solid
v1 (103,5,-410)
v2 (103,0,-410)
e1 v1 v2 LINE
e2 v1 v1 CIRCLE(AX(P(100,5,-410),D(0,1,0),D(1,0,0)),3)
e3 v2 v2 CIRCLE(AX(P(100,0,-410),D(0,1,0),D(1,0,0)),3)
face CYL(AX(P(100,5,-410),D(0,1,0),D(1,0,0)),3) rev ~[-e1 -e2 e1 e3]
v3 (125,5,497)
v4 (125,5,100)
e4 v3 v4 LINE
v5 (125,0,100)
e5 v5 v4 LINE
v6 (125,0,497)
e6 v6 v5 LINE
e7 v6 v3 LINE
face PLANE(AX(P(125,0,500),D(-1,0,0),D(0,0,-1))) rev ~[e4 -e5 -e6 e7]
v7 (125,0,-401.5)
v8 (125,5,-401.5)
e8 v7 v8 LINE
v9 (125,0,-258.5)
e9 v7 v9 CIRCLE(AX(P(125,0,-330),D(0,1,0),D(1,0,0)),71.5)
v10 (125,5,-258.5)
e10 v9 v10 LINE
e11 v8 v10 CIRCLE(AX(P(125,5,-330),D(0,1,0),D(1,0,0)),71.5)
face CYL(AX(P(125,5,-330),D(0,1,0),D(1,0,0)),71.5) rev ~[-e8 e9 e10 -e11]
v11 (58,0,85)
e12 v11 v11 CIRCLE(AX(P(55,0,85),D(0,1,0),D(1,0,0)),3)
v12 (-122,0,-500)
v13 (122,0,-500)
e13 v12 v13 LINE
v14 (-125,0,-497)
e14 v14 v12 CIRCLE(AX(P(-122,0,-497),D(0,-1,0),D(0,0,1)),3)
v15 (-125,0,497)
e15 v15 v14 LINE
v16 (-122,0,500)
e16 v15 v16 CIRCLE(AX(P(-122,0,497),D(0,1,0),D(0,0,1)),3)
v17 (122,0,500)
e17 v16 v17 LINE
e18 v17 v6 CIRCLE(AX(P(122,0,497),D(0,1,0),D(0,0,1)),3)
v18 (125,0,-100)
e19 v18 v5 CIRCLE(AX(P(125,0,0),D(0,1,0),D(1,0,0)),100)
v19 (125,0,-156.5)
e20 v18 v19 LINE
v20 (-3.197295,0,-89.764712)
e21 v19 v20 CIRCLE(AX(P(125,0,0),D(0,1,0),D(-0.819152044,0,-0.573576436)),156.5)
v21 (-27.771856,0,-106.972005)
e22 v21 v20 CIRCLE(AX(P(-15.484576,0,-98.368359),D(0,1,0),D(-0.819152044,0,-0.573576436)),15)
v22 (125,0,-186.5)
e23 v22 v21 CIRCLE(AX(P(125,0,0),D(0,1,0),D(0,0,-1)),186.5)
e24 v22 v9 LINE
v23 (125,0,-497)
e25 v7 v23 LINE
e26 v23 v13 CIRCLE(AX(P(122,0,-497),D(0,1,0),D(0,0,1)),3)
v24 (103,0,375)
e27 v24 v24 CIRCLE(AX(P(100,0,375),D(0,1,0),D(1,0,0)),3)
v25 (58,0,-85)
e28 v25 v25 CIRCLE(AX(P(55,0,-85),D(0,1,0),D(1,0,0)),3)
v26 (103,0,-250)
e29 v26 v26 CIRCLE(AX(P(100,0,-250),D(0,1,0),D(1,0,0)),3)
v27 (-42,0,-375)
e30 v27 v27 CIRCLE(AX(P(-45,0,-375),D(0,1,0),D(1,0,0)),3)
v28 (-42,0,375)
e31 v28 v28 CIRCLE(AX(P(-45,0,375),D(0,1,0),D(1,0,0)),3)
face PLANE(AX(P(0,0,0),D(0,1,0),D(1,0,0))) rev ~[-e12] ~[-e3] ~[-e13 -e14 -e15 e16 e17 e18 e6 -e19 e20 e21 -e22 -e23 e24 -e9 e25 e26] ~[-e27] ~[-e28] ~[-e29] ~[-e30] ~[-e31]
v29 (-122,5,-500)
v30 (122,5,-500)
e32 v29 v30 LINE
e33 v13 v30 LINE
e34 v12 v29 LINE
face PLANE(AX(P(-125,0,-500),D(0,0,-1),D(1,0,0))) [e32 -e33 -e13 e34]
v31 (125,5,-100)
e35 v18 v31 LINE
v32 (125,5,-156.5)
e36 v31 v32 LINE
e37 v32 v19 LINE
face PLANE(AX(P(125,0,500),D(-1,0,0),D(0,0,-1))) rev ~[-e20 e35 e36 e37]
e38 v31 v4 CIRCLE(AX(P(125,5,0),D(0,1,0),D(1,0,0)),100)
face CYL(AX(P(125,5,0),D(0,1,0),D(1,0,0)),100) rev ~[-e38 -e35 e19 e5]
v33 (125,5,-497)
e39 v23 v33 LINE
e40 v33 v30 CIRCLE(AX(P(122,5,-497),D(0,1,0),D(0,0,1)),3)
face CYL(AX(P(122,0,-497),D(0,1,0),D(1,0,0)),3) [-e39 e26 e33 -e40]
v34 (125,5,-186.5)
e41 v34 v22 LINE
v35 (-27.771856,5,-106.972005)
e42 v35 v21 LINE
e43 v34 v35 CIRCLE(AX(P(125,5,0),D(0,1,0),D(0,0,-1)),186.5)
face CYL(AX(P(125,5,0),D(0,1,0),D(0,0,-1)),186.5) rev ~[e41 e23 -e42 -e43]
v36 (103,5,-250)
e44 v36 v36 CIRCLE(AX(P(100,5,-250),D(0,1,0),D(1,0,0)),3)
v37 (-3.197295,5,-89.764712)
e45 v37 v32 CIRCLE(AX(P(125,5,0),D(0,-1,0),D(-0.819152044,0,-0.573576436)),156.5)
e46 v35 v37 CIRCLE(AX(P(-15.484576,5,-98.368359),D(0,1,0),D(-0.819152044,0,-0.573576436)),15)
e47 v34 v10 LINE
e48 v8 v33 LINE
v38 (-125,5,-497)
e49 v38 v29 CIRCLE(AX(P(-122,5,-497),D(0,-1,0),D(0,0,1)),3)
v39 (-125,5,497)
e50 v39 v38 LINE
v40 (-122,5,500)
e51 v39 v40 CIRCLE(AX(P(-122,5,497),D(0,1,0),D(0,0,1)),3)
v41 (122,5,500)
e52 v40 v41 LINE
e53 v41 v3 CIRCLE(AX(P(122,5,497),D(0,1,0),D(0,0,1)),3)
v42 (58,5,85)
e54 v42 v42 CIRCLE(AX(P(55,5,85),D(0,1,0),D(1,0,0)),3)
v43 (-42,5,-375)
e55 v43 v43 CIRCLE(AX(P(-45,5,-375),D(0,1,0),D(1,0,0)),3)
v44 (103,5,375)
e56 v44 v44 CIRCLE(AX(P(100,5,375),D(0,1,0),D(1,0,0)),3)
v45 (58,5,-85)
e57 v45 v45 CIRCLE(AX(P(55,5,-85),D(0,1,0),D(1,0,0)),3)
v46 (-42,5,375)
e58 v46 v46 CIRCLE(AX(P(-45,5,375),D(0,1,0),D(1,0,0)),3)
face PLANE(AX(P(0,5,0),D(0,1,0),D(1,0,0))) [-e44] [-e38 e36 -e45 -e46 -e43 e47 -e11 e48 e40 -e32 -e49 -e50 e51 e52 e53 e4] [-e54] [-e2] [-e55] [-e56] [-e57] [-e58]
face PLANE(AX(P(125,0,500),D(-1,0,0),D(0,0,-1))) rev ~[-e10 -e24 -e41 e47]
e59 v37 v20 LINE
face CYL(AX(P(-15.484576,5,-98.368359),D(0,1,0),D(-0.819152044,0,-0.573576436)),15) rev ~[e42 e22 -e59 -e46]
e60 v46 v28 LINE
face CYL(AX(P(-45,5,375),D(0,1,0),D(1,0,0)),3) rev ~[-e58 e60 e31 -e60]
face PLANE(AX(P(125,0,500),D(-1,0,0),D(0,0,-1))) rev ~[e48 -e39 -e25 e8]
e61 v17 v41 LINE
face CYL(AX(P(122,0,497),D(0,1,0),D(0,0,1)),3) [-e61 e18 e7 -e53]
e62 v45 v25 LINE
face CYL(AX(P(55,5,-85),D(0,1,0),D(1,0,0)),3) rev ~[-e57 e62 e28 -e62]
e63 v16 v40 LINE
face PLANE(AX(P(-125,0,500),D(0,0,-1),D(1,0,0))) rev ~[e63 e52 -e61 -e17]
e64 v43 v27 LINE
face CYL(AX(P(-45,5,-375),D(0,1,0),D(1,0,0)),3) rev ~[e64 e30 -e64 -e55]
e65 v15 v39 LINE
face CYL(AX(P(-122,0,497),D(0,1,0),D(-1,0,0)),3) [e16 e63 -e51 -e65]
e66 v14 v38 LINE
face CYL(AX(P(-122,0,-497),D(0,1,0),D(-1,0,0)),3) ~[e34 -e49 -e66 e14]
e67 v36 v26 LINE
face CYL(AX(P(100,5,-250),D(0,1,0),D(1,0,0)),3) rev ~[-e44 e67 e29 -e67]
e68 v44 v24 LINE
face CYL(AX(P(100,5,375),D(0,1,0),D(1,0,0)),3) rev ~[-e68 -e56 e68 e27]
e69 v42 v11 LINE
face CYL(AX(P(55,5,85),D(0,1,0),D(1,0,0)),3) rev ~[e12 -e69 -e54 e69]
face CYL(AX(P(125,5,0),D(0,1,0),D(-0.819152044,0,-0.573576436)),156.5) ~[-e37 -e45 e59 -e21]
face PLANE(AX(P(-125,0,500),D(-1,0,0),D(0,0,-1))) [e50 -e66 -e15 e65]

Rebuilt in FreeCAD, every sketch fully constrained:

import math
import FreeCAD as App
import Part
import Sketcher
from FreeCAD import Vector


def edges_at(feature, points):
    """Names of the edges that pass closest to the given points."""
    edges = feature.Shape.Edges
    near = lambda p: min(range(len(edges)), key=lambda i: edges[i].distToShape(Part.Vertex(*p))[0])
    return sorted({f"Edge{near(p) + 1}" for p in points})


def add_polygon(sketch, points):
    """Adds a closed chain of lines whose ends are joined by coincident constraints."""
    first, n = sketch.GeometryCount, len(points)
    for a, b in zip(points, points[1:] + points[:1]):
        sketch.addGeometry(Part.LineSegment(App.Vector(*a, 0), App.Vector(*b, 0)), False)
    for i in range(n):
        sketch.addConstraint(Sketcher.Constraint("Coincident", first + i, 2, first + (i + 1) % n, 1))

doc = App.newDocument("Part")
body = doc.addObject("PartDesign::Body", "Body")

sketch1 = body.newObject("Sketcher::SketchObject", "Sketch")
sketch1.AttachmentSupport = (doc.getObject("XZ_Plane"), [""])
sketch1.MapMode = "FlatFace"
add_polygon(sketch1, [(-125, -500), (-125, 500), (125, 500), (125, -500)])
sketch1.addConstraint(Sketcher.Constraint("Vertical", 0))
sketch1.addConstraint(Sketcher.Constraint("Horizontal", 1))
sketch1.addConstraint(Sketcher.Constraint("Vertical", 2))
sketch1.addConstraint(Sketcher.Constraint("Horizontal", 3))
sketch1.addConstraint(Sketcher.Constraint("Symmetric", 0, 2, 2, 2, -1, 1))
sketch1.addConstraint(Sketcher.Constraint("DistanceX", 1, 1, 1, 2, 250.0))
sketch1.addConstraint(Sketcher.Constraint("DistanceY", 0, 1, 0, 2, 1000.0))
pad1 = body.newObject("PartDesign::Pad", "Pad")
pad1.Profile = sketch1
pad1.Length = 5
pad1.Reversed = True
doc.recompute()

fillet = body.newObject("PartDesign::Fillet", "Fillet")
fillet.Base = (pad1, edges_at(pad1, [
    (125, 2.5, 500),
    (-125, 2.5, 500),
    (-125, 2.5, -500),
    (125, 2.5, -500),
]))
fillet.Radius = 3

sketch2 = body.newObject("Sketcher::SketchObject", "Sketch001")
sketch2.AttachmentSupport = (doc.getObject("XZ_Plane"), [""])
sketch2.MapMode = "FlatFace"
sketch2.AttachmentOffset = App.Placement(Vector(0, 0, -5), App.Rotation())
sketch2.addGeometry(Part.Circle(Vector(125, -330, 0), Vector(0, 0, 1), 72), False)
sketch2.addConstraint(Sketcher.Constraint("Diameter", 0, 143.0))
sketch2.addConstraint(Sketcher.Constraint("DistanceX", -1, 1, 0, 3, 125.0))
sketch2.addConstraint(Sketcher.Constraint("DistanceY", 0, 3, -1, 1, 330.0))
pocket1 = body.newObject("PartDesign::Pocket", "Pocket")
pocket1.Profile = sketch2
pocket1.Type = "UpToFirst"
pocket1.Reversed = True

sketch3 = body.newObject("Sketcher::SketchObject", "Sketch002")
sketch3.AttachmentSupport = (doc.getObject("XZ_Plane"), [""])
sketch3.MapMode = "FlatFace"
sketch3.AttachmentOffset = App.Placement(Vector(0, 0, -5), App.Rotation())
sketch3.addGeometry(Part.Circle(Vector(125, 0, 0), Vector(0, 0, 1), 100), False)
sketch3.addConstraint(Sketcher.Constraint("PointOnObject", 0, 3, -1))
sketch3.addConstraint(Sketcher.Constraint("Diameter", 0, 200.0))
sketch3.addConstraint(Sketcher.Constraint("DistanceX", -1, 1, 0, 3, 125.0))
pocket2 = body.newObject("PartDesign::Pocket", "Pocket001")
pocket2.Profile = sketch3
pocket2.Type = "UpToFirst"
pocket2.Reversed = True

sketch4 = body.newObject("Sketcher::SketchObject", "Sketch003")
sketch4.AttachmentSupport = (doc.getObject("XZ_Plane"), [""])
sketch4.MapMode = "FlatFace"
sketch4.AttachmentOffset = App.Placement(Vector(0, 0, -5), App.Rotation())
sketch4.addGeometry(Part.Circle(Vector(-45, 375, 0), Vector(0, 0, 1), 3), False)
sketch4.addConstraint(Sketcher.Constraint("Diameter", 0, 6.0))
sketch4.addConstraint(Sketcher.Constraint("DistanceX", 0, 3, -1, 1, 45.0))
sketch4.addConstraint(Sketcher.Constraint("DistanceY", -1, 1, 0, 3, 375.0))
pocket3 = body.newObject("PartDesign::Pocket", "Pocket002")
pocket3.Profile = sketch4
pocket3.Type = "UpToFirst"
pocket3.Reversed = True

sketch5 = body.newObject("Sketcher::SketchObject", "Sketch004")
sketch5.AttachmentSupport = (doc.getObject("XZ_Plane"), [""])
sketch5.MapMode = "FlatFace"
sketch5.AttachmentOffset = App.Placement(Vector(0, 0, -5), App.Rotation())
sketch5.addGeometry(Part.Circle(Vector(-45, -375, 0), Vector(0, 0, 1), 3), False)
sketch5.addConstraint(Sketcher.Constraint("Diameter", 0, 6.0))
sketch5.addConstraint(Sketcher.Constraint("DistanceX", 0, 3, -1, 1, 45.0))
sketch5.addConstraint(Sketcher.Constraint("DistanceY", 0, 3, -1, 1, 375.0))
pocket4 = body.newObject("PartDesign::Pocket", "Pocket003")
pocket4.Profile = sketch5
pocket4.Type = "UpToFirst"
pocket4.Reversed = True

sketch6 = body.newObject("Sketcher::SketchObject", "Sketch005")
sketch6.AttachmentSupport = (doc.getObject("XZ_Plane"), [""])
sketch6.MapMode = "FlatFace"
sketch6.AttachmentOffset = App.Placement(Vector(0, 0, -5), App.Rotation())
sketch6.addGeometry(Part.Circle(Vector(55, 85, 0), Vector(0, 0, 1), 3), False)
sketch6.addConstraint(Sketcher.Constraint("Diameter", 0, 6.0))
sketch6.addConstraint(Sketcher.Constraint("DistanceX", -1, 1, 0, 3, 55.0))
sketch6.addConstraint(Sketcher.Constraint("DistanceY", -1, 1, 0, 3, 85.0))
pocket5 = body.newObject("PartDesign::Pocket", "Pocket004")
pocket5.Profile = sketch6
pocket5.Type = "UpToFirst"
pocket5.Reversed = True

sketch7 = body.newObject("Sketcher::SketchObject", "Sketch006")
sketch7.AttachmentSupport = (doc.getObject("XZ_Plane"), [""])
sketch7.MapMode = "FlatFace"
sketch7.AttachmentOffset = App.Placement(Vector(0, 0, -5), App.Rotation())
sketch7.addGeometry(Part.Circle(Vector(55, -85, 0), Vector(0, 0, 1), 3), False)
sketch7.addConstraint(Sketcher.Constraint("Diameter", 0, 6.0))
sketch7.addConstraint(Sketcher.Constraint("DistanceX", -1, 1, 0, 3, 55.0))
sketch7.addConstraint(Sketcher.Constraint("DistanceY", 0, 3, -1, 1, 85.0))
pocket6 = body.newObject("PartDesign::Pocket", "Pocket005")
pocket6.Profile = sketch7
pocket6.Type = "UpToFirst"
pocket6.Reversed = True

sketch8 = body.newObject("Sketcher::SketchObject", "Sketch007")
sketch8.AttachmentSupport = (doc.getObject("XZ_Plane"), [""])
sketch8.MapMode = "FlatFace"
sketch8.AttachmentOffset = App.Placement(Vector(0, 0, -5), App.Rotation())
sketch8.addGeometry(Part.Circle(Vector(100, -410, 0), Vector(0, 0, 1), 3), False)
sketch8.addConstraint(Sketcher.Constraint("Diameter", 0, 6.0))
sketch8.addConstraint(Sketcher.Constraint("DistanceX", -1, 1, 0, 3, 100.0))
sketch8.addConstraint(Sketcher.Constraint("DistanceY", 0, 3, -1, 1, 410.0))
pocket7 = body.newObject("PartDesign::Pocket", "Pocket006")
pocket7.Profile = sketch8
pocket7.Type = "UpToFirst"
pocket7.Reversed = True

sketch9 = body.newObject("Sketcher::SketchObject", "Sketch008")
sketch9.AttachmentSupport = (doc.getObject("XZ_Plane"), [""])
sketch9.MapMode = "FlatFace"
sketch9.AttachmentOffset = App.Placement(Vector(0, 0, -5), App.Rotation())
sketch9.addGeometry(Part.Circle(Vector(100, -250, 0), Vector(0, 0, 1), 3), False)
sketch9.addConstraint(Sketcher.Constraint("Diameter", 0, 6.0))
sketch9.addConstraint(Sketcher.Constraint("DistanceX", -1, 1, 0, 3, 100.0))
sketch9.addConstraint(Sketcher.Constraint("DistanceY", 0, 3, -1, 1, 250.0))
pocket8 = body.newObject("PartDesign::Pocket", "Pocket007")
pocket8.Profile = sketch9
pocket8.Type = "UpToFirst"
pocket8.Reversed = True

sketch10 = body.newObject("Sketcher::SketchObject", "Sketch009")
sketch10.AttachmentSupport = (doc.getObject("XZ_Plane"), [""])
sketch10.MapMode = "FlatFace"
sketch10.AttachmentOffset = App.Placement(Vector(0, 0, -5), App.Rotation())
sketch10.addGeometry(Part.Circle(Vector(100, 375, 0), Vector(0, 0, 1), 3), False)
sketch10.addConstraint(Sketcher.Constraint("Diameter", 0, 6.0))
sketch10.addConstraint(Sketcher.Constraint("DistanceX", -1, 1, 0, 3, 100.0))
sketch10.addConstraint(Sketcher.Constraint("DistanceY", -1, 1, 0, 3, 375.0))
pocket9 = body.newObject("PartDesign::Pocket", "Pocket008")
pocket9.Profile = sketch10
pocket9.Type = "UpToFirst"
pocket9.Reversed = True

sketch11 = body.newObject("Sketcher::SketchObject", "Sketch010")
sketch11.AttachmentSupport = (doc.getObject("XZ_Plane"), [""])
sketch11.MapMode = "FlatFace"
sketch11.AttachmentOffset = App.Placement(Vector(0, 0, -5), App.Rotation())
sketch11.addGeometry(Part.ArcOfCircle(Part.Circle(Vector(125, 0, 0), Vector(0, 0, 1), 186), math.radians(-145), math.radians(-90)), False)
sketch11.addGeometry(Part.ArcOfCircle(Part.Circle(Vector(-15, -98, 0), Vector(0, 0, 1), 15), math.radians(35), math.radians(215)), False)
sketch11.addGeometry(Part.ArcOfCircle(Part.Circle(Vector(125, 0, 0), Vector(0, 0, 1), 157), math.radians(-145), math.radians(-90)), False)
sketch11.addGeometry(Part.ArcOfCircle(Part.Circle(Vector(125, -172, 0), Vector(0, 0, 1), 15), math.radians(-90), math.radians(90)), False)
sketch11.addConstraint(Sketcher.Constraint("Tangent", 0, 1, 1, 2))
sketch11.addConstraint(Sketcher.Constraint("Tangent", 1, 1, 2, 1))
sketch11.addConstraint(Sketcher.Constraint("Tangent", 2, 2, 3, 2))
sketch11.addConstraint(Sketcher.Constraint("Tangent", 3, 1, 0, 2))
sketch11.addConstraint(Sketcher.Constraint("Coincident", 2, 3, 0, 3))
sketch11.addConstraint(Sketcher.Constraint("PointOnObject", 0, 3, -1))
sketch11.addConstraint(Sketcher.Constraint("Vertical", 2, 3, 3, 3))
sketch11.addConstraint(Sketcher.Constraint("Radius", 1, 15.0))
sketch11.addConstraint(Sketcher.Constraint("Radius", 0, 186.5))
sketch11.addConstraint(Sketcher.Constraint("DistanceX", -1, 1, 0, 3, 125.0))
sketch11.addConstraint(Sketcher.Constraint("DistanceY", 1, 3, -1, 1, 98.368359))
pocket10 = body.newObject("PartDesign::Pocket", "Pocket009")
pocket10.Profile = sketch11
pocket10.Type = "UpToFirst"
pocket10.Reversed = True

doc.recompute()
